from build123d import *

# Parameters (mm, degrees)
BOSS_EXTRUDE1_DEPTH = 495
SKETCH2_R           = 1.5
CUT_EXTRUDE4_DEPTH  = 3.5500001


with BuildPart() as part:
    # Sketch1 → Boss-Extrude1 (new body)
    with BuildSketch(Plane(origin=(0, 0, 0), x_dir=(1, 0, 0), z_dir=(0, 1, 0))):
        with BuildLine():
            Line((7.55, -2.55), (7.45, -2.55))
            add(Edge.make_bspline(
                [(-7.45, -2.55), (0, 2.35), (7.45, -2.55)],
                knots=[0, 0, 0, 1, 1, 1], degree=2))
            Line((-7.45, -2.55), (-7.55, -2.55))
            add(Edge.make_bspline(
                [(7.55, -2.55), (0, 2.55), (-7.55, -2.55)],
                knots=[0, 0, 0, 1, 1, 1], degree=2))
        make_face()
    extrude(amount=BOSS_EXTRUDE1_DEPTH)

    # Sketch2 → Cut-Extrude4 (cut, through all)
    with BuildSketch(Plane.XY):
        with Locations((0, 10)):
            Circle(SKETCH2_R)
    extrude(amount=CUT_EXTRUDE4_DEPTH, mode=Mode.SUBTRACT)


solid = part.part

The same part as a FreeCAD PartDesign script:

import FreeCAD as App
import Part
import Sketcher
Q = App.Units.Quantity

doc = App.newDocument("Part")
params = doc.addObject("Spreadsheet::Sheet", "Params")
for row, (alias, value) in enumerate([
    ("pad1_length", "495 mm"),
    ("sketch2_diameter", "3 mm"),
], start=1):
    params.set(f"A{row}", alias)
    params.set(f"B{row}", "=" + value)
    params.setAlias(f"B{row}", alias)

body = doc.addObject("PartDesign::Body", "Body")

sketch1 = doc.addObject("Sketcher::SketchObject", "Sketch")
body.addObject(sketch1)
sketch1.AttachmentSupport = (doc.XZ_Plane, [""])
sketch1.MapMode = "FlatFace"
sketch1.addGeometry([
    Part.LineSegment(App.Vector(7.45, 2.55, 0), App.Vector(7.55, 2.55, 0)),
    Part.BSplineCurve([App.Vector(7.55, 2.55, 0), App.Vector(0, -2.55, 0), App.Vector(-7.55, 2.55, 0)], [3, 3], [0, 1], False, 2, [1, 1, 1], False),
    Part.LineSegment(App.Vector(-7.55, 2.55, 0), App.Vector(-7.45, 2.55, 0)),
    Part.BSplineCurve([App.Vector(-7.45, 2.55, 0), App.Vector(0, -2.35, 0), App.Vector(7.45, 2.55, 0)], [3, 3], [0, 1], False, 2, [1, 1, 1], False),
], False)
sketch1.addConstraint([
    Sketcher.Constraint("Block", 1),
    Sketcher.Constraint("Block", 3),
    Sketcher.Constraint("Coincident", 0, 2, 1, 1),
    Sketcher.Constraint("Coincident", 1, 2, 2, 1),
    Sketcher.Constraint("Coincident", 2, 2, 3, 1),
    Sketcher.Constraint("Coincident", 3, 2, 0, 1),
])
pad1 = doc.addObject("PartDesign::Pad", "Pad")
body.addObject(pad1)
pad1.Profile = sketch1
pad1.setExpression("Length", "Params.pad1_length")
pad1.Reversed = True

sketch2 = doc.addObject("Sketcher::SketchObject", "Sketch001")
body.addObject(sketch2)
sketch2.AttachmentSupport = (doc.XY_Plane, [""])
sketch2.MapMode = "FlatFace"
sketch2.addGeometry(Part.Circle(App.Vector(0, 10, 0), App.Vector(0, 0, 1), 1.5), False)
sketch2.addConstraint([
    Sketcher.Constraint("PointOnObject", 0, 3, -2),
    Sketcher.Constraint("Diameter", 0, Q("3 mm")),
    Sketcher.Constraint("DistanceY", -1, 1, 0, 3, Q("10 mm")),
])
sketch2.setExpression("Constraints[1]", "Params.sketch2_diameter")
pocket1 = doc.addObject("PartDesign::Pocket", "Pocket")
body.addObject(pocket1)
pocket1.Profile = sketch2
pocket1.Type = "ThroughAll"
pocket1.Reversed = True

doc.recompute()
